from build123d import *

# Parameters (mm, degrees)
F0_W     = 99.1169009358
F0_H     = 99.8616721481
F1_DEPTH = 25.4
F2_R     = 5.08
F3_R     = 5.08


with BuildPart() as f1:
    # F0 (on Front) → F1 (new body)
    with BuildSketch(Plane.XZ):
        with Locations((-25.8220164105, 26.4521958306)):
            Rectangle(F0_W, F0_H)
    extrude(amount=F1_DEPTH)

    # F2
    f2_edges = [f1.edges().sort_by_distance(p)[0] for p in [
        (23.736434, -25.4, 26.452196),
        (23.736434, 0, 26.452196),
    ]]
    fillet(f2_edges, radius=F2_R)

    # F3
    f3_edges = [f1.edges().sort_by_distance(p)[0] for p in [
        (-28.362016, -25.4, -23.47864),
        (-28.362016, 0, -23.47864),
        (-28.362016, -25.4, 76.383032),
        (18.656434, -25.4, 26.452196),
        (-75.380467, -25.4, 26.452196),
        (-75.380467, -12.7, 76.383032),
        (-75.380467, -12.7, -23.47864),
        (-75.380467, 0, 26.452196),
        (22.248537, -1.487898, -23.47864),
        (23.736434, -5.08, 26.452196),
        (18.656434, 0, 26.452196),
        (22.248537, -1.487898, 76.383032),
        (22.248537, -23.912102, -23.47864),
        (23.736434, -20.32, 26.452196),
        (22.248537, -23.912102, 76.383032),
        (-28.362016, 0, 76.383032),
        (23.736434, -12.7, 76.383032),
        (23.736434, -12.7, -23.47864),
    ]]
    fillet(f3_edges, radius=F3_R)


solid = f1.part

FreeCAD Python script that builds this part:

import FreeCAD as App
import Part
import Sketcher


def edges_at(feature, points):
    """Names of the edges that pass closest to the given points."""
    edges = feature.Shape.Edges
    near = lambda p: min(range(len(edges)), key=lambda i: edges[i].distToShape(Part.Vertex(*p))[0])
    return sorted({f"Edge{near(p) + 1}" for p in points})

doc = App.newDocument("Part")
params = doc.addObject("Spreadsheet::Sheet", "Params")
for row, (alias, value) in enumerate([
    ("pad1_length", "1 in"),
    ("fillet_radius", "0.2 in"),
    ("fillet2_radius", "0.2 in"),
], start=1):
    params.set(f"A{row}", alias)
    params.set(f"B{row}", "=" + value)
    params.setAlias(f"B{row}", alias)

body = doc.addObject("PartDesign::Body", "Body")

# Sketch on XZ plane
sketch1 = body.newObject("Sketcher::SketchObject", "Sketch")
sketch1.AttachmentSupport = (doc.getObject("XZ_Plane"), [""])
sketch1.MapMode = "FlatFace"
sketch1.addGeometry(Part.LineSegment(App.Vector(-75, 76, 0), App.Vector(-75, -23, 0)), False)
sketch1.addGeometry(Part.LineSegment(App.Vector(-75, -23, 0), App.Vector(24, -23, 0)), False)
sketch1.addGeometry(Part.LineSegment(App.Vector(24, -23, 0), App.Vector(24, 76, 0)), False)
sketch1.addGeometry(Part.LineSegment(App.Vector(24, 76, 0), App.Vector(-75, 76, 0)), False)
sketch1.addConstraint(Sketcher.Constraint("Coincident", 0, 2, 1, 1))
sketch1.addConstraint(Sketcher.Constraint("Coincident", 1, 2, 2, 1))
sketch1.addConstraint(Sketcher.Constraint("Coincident", 2, 2, 3, 1))
sketch1.addConstraint(Sketcher.Constraint("Coincident", 3, 2, 0, 1))
sketch1.addConstraint(Sketcher.Constraint("Vertical", 0))
sketch1.addConstraint(Sketcher.Constraint("Horizontal", 1))
sketch1.addConstraint(Sketcher.Constraint("Vertical", 2))
sketch1.addConstraint(Sketcher.Constraint("Horizontal", 3))
sketch1.addConstraint(Sketcher.Constraint("DistanceX", 1, 1, 1, 2, 99.116901))
sketch1.addConstraint(Sketcher.Constraint("DistanceY", 0, 2, 0, 1, 99.861672))
sketch1.addConstraint(Sketcher.Constraint("DistanceY", 0, 2, -1, 1, 23.47864))
sketch1.addConstraint(Sketcher.Constraint("DistanceX", 0, 2, -1, 1, 75.380467))
pad1 = body.newObject("PartDesign::Pad", "Pad")
pad1.Profile = sketch1
pad1.setExpression("Length", "Params.pad1_length")
doc.recompute()

fillet = body.newObject("PartDesign::Fillet", "Fillet")
fillet.Base = (pad1, edges_at(pad1, [(23.736, -25.4, 26.452), (23.736, 0, 26.452)]))
fillet.setExpression("Radius", "Params.fillet_radius")
doc.recompute()

fillet2 = body.newObject("PartDesign::Fillet", "Fillet001")
fillet2.Base = (fillet, ["Edge1"])
fillet2.UseAllEdges = True
fillet2.setExpression("Radius", "Params.fillet2_radius")

doc.recompute()
